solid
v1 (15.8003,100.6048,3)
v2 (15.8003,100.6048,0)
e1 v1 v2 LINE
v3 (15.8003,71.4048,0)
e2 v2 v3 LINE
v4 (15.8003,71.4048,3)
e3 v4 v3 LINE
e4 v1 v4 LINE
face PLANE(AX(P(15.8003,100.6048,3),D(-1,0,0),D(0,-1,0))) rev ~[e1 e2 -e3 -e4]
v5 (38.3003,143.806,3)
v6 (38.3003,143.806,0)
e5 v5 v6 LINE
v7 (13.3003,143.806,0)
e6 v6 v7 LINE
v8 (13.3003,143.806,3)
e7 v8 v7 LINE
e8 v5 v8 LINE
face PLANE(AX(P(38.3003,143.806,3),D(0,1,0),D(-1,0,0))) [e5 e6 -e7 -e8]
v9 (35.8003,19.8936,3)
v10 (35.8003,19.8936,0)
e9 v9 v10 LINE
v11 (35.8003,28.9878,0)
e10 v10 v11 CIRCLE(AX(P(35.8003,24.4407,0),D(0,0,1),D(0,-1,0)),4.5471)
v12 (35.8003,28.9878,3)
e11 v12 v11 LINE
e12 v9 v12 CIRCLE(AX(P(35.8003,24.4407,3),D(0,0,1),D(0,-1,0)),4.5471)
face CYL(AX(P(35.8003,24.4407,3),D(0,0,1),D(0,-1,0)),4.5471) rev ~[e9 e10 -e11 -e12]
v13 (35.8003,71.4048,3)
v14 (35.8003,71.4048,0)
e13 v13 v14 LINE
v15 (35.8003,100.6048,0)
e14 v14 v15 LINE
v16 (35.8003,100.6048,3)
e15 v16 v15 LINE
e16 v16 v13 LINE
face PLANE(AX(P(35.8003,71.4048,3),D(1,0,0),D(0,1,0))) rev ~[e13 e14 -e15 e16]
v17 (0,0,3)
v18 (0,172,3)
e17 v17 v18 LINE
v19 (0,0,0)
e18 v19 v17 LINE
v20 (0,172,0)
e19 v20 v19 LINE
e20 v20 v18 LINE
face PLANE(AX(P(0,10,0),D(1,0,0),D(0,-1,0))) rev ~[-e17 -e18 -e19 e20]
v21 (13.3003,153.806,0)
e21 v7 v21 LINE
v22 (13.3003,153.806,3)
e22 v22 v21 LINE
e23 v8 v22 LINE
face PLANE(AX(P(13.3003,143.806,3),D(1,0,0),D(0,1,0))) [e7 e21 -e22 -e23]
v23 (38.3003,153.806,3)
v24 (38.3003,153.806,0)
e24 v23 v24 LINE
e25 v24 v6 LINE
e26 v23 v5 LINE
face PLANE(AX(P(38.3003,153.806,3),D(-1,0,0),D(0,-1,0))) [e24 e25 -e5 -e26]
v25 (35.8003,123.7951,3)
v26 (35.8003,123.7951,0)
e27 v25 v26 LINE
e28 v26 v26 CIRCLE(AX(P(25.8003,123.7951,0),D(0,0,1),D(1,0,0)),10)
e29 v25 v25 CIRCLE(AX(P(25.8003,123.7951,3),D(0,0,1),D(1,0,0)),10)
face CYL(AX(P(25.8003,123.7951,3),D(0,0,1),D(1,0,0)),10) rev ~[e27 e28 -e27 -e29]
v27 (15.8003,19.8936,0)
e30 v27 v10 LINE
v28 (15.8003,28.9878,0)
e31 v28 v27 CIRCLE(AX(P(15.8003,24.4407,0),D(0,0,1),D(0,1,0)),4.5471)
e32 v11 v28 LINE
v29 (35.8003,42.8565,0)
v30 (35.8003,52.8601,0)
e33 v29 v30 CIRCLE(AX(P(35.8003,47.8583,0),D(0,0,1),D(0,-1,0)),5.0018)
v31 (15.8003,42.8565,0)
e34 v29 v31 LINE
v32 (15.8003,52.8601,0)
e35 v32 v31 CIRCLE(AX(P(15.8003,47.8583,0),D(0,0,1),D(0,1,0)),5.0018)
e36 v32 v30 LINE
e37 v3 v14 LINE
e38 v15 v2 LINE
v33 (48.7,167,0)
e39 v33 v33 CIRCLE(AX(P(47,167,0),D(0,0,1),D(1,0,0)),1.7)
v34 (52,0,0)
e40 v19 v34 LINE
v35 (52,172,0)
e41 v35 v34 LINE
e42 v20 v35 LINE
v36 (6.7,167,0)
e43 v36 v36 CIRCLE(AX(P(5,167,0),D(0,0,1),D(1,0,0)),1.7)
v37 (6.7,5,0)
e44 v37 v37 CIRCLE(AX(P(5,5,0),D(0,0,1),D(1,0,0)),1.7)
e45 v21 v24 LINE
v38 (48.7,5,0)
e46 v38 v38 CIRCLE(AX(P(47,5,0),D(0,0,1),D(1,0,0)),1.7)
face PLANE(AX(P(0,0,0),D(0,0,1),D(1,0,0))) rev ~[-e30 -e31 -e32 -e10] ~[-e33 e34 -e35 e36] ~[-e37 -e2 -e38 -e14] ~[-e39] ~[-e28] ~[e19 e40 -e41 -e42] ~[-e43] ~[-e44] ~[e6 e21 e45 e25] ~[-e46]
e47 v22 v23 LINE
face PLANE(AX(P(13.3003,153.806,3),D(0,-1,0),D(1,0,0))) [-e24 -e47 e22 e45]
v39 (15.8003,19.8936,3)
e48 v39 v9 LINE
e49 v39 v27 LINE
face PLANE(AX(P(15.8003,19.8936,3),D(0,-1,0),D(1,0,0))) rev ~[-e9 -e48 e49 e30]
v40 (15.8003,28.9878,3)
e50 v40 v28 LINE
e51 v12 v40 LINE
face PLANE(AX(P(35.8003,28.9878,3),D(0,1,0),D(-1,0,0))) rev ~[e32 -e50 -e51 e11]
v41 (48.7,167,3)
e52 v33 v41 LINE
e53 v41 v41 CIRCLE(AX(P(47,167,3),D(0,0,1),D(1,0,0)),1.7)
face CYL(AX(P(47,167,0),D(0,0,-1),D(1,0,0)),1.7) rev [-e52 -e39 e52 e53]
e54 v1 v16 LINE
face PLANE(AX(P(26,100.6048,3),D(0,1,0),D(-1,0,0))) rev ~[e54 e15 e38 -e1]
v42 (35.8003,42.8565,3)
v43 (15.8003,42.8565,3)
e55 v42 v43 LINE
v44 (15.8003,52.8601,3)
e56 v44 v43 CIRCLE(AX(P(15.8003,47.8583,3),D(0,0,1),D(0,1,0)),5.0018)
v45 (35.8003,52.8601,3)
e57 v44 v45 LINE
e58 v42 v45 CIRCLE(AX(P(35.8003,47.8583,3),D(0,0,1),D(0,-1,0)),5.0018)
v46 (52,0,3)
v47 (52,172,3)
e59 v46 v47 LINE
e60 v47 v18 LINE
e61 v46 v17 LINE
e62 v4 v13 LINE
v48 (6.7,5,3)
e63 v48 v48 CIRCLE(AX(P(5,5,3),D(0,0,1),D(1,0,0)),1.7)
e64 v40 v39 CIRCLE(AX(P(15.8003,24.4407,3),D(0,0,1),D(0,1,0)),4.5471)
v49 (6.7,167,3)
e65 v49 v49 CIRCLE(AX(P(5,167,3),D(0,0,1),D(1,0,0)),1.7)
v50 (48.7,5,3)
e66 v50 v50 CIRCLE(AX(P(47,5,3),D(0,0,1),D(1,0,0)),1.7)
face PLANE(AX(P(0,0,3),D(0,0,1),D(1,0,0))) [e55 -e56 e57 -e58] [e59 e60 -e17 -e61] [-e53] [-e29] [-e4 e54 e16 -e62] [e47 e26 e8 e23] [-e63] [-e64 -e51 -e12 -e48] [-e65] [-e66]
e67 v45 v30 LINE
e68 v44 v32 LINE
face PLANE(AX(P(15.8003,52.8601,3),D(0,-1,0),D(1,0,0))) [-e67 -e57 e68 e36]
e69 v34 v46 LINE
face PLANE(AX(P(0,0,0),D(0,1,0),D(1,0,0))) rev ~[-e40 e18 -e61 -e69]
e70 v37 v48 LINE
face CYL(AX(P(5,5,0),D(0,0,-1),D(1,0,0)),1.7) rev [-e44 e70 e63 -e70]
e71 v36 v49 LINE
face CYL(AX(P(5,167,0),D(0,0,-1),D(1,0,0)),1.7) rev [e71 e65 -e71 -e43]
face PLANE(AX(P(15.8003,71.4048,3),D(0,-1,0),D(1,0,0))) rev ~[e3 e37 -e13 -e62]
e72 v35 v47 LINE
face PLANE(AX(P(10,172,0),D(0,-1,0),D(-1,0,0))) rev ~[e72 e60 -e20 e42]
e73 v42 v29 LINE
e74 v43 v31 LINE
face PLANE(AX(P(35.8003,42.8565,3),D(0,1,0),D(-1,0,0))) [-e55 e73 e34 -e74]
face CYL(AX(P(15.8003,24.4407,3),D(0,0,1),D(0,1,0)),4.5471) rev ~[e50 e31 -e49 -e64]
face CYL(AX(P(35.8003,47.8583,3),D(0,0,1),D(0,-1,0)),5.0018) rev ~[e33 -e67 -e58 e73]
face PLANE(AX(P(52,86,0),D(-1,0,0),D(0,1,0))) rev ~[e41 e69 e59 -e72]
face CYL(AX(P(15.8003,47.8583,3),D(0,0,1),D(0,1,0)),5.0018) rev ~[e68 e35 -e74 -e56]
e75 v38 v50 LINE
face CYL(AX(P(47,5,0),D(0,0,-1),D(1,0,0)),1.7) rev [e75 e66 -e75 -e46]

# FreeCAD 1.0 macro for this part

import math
import FreeCAD as App
import Part
import Sketcher

doc = App.newDocument("Part")
body = doc.addObject("PartDesign::Body", "Body")

# Sketch on XY plane
sketch1 = body.newObject("Sketcher::SketchObject", "Sketch")
sketch1.AttachmentSupport = (doc.getObject("XY_Plane"), [""])
sketch1.MapMode = "FlatFace"
sketch1.addGeometry([
    Part.LineSegment(App.Vector(0, 0, 0), App.Vector(52, 0, 0)),  # 0
    Part.LineSegment(App.Vector(52, 0, 0), App.Vector(52, 172, 0)),  # 1
    Part.LineSegment(App.Vector(52, 172, 0), App.Vector(0, 172, 0)),  # 2
    Part.LineSegment(App.Vector(0, 172, 0), App.Vector(0, 0, 0)),  # 3
    Part.Circle(App.Vector(5, 5, 0), App.Vector(0, 0, 1), 1.7),  # 4
    Part.Circle(App.Vector(47, 5, 0), App.Vector(0, 0, 1), 1.7),  # 5
    Part.Circle(App.Vector(5, 167, 0), App.Vector(0, 0, 1), 1.7),  # 6
    Part.Circle(App.Vector(47, 167, 0), App.Vector(0, 0, 1), 1.7),  # 7
], False)
sketch1.addConstraint([
    Sketcher.Constraint("Coincident", 0, 2, 1, 1),
    Sketcher.Constraint("Coincident", 1, 2, 2, 1),
    Sketcher.Constraint("Coincident", 2, 2, 3, 1),
    Sketcher.Constraint("Coincident", 3, 2, 0, 1),
    Sketcher.Constraint("Horizontal", 0),
    Sketcher.Constraint("Vertical", 1),
    Sketcher.Constraint("Horizontal", 2),
    Sketcher.Constraint("Vertical", 3),
    Sketcher.Constraint("Coincident", 3, 2, -1, 1),
    Sketcher.Constraint("Equal", 4, 5),
    Sketcher.Constraint("Equal", 5, 6),
    Sketcher.Constraint("Equal", 6, 7),
    Sketcher.Constraint("Horizontal", 4, 3, 5, 3),
    Sketcher.Constraint("Horizontal", 6, 3, 7, 3),
    Sketcher.Constraint("Vertical", 4, 3, 6, 3),
    Sketcher.Constraint("Vertical", 5, 3, 7, 3),
    Sketcher.Constraint("Diameter", 4, 3.4),
    Sketcher.Constraint("DistanceX", 0, 1, 0, 2, 52.0),
    Sketcher.Constraint("DistanceY", 1, 1, 1, 2, 172.0),
    Sketcher.Constraint("DistanceX", -1, 1, 4, 3, 5.0),
    Sketcher.Constraint("DistanceY", -1, 1, 4, 3, 5.0),
    Sketcher.Constraint("DistanceX", -1, 1, 5, 3, 47.0),
    Sketcher.Constraint("DistanceY", -1, 1, 6, 3, 167.0),
])
pad1 = body.newObject("PartDesign::Pad", "Pad")
pad1.Profile = sketch1
pad1.Length = 3

# Sketch on XY plane
sketch2 = body.newObject("Sketcher::SketchObject", "Sketch001")
sketch2.AttachmentSupport = (doc.getObject("XY_Plane"), [""])
sketch2.MapMode = "FlatFace"
sketch2.AttachmentOffset = App.Placement(App.Vector(0, 0, 3), App.Rotation())
sketch2.addGeometry([
    Part.LineSegment(App.Vector(38.3, 153.8, 0), App.Vector(13.3, 153.8, 0)),  # 0
    Part.LineSegment(App.Vector(13.3, 153.8, 0), App.Vector(13.3, 143.8, 0)),  # 1
    Part.LineSegment(App.Vector(13.3, 143.8, 0), App.Vector(38.3, 143.8, 0)),  # 2
    Part.LineSegment(App.Vector(38.3, 143.8, 0), App.Vector(38.3, 153.8, 0)),  # 3
    Part.Circle(App.Vector(25.8, 123.8, 0), App.Vector(0, 0, 1), 10),  # 4
    Part.LineSegment(App.Vector(35.8, 71.4, 0), App.Vector(35.8, 100.6, 0)),  # 5
    Part.LineSegment(App.Vector(35.8, 100.6, 0), App.Vector(15.8, 100.6, 0)),  # 6
    Part.LineSegment(App.Vector(15.8, 100.6, 0), App.Vector(15.8, 71.4, 0)),  # 7
    Part.LineSegment(App.Vector(15.8, 71.4, 0), App.Vector(35.8, 71.4, 0)),  # 8
    Part.LineSegment(App.Vector(35.8, 52.9, 0), App.Vector(15.8, 52.9, 0)),  # 9
    Part.ArcOfCircle(Part.Circle(App.Vector(15.8, 47.9, 0), App.Vector(0, 0, 1), 5), math.radians(90), math.radians(270)),  # 10
    Part.LineSegment(App.Vector(15.8, 42.9, 0), App.Vector(35.8, 42.9, 0)),  # 11
    Part.ArcOfCircle(Part.Circle(App.Vector(35.8, 47.9, 0), App.Vector(0, 0, 1), 5), math.radians(-90), math.radians(90)),  # 12
    Part.ArcOfCircle(Part.Circle(App.Vector(15.8, 24.4, 0), App.Vector(0, 0, 1), 4.5), math.radians(90), math.radians(270)),  # 13
    Part.LineSegment(App.Vector(15.8, 19.9, 0), App.Vector(35.8, 19.9, 0)),  # 14
    Part.ArcOfCircle(Part.Circle(App.Vector(35.8, 24.4, 0), App.Vector(0, 0, 1), 4.5), math.radians(-90), math.radians(90)),  # 15
    Part.LineSegment(App.Vector(35.8, 29, 0), App.Vector(15.8, 29, 0)),  # 16
], False)
sketch2.addConstraint([
    Sketcher.Constraint("Coincident", 0, 2, 1, 1),
    Sketcher.Constraint("Coincident", 1, 2, 2, 1),
    Sketcher.Constraint("Coincident", 2, 2, 3, 1),
    Sketcher.Constraint("Coincident", 3, 2, 0, 1),
    Sketcher.Constraint("Coincident", 5, 2, 6, 1),
    Sketcher.Constraint("Coincident", 6, 2, 7, 1),
    Sketcher.Constraint("Coincident", 7, 2, 8, 1),
    Sketcher.Constraint("Coincident", 8, 2, 5, 1),
    Sketcher.Constraint("Tangent", 9, 2, 10, 1),
    Sketcher.Constraint("Tangent", 10, 2, 11, 1),
    Sketcher.Constraint("Tangent", 11, 2, 12, 1),
    Sketcher.Constraint("Tangent", 12, 2, 9, 1),
    Sketcher.Constraint("Tangent", 13, 2, 14, 1),
    Sketcher.Constraint("Tangent", 14, 2, 15, 1),
    Sketcher.Constraint("Tangent", 15, 2, 16, 1),
    Sketcher.Constraint("Tangent", 16, 2, 13, 1),
    Sketcher.Constraint("Horizontal", 0),
    Sketcher.Constraint("Vertical", 1),
    Sketcher.Constraint("Horizontal", 2),
    Sketcher.Constraint("Vertical", 3),
    Sketcher.Constraint("Vertical", 5),
    Sketcher.Constraint("Horizontal", 6),
    Sketcher.Constraint("Vertical", 7),
    Sketcher.Constraint("Horizontal", 8),
    Sketcher.Constraint("Horizontal", 9),
    Sketcher.Constraint("Horizontal", 11),
    Sketcher.Constraint("Horizontal", 14),
    Sketcher.Constraint("Horizontal", 16),
    Sketcher.Constraint("Vertical", 10, 3, 13, 3),
    Sketcher.Constraint("Vertical", 12, 3, 15, 3),
    Sketcher.Constraint("Vertical", 15, 3, 5, 2),
    Sketcher.Constraint("Vertical", 13, 3, 6, 2),
    Sketcher.Constraint("Diameter", 4, 20.0),
    Sketcher.Constraint("DistanceX", 0, 2, 0, 1, 25.0),
    Sketcher.Constraint("DistanceX", 6, 2, 6, 1, 20.0),
    Sketcher.Constraint("DistanceY", 1, 2, 1, 1, 10.0),
    Sketcher.Constraint("DistanceY", 5, 1, 5, 2, 29.2),
    Sketcher.Constraint("DistanceX", 10, 3, 4, 3, 10.0),
    Sketcher.Constraint("Radius", 13, 4.547),
    Sketcher.Constraint("Radius", 10, 5.0018),
    Sketcher.Constraint("DistanceX", 0, 2, 4, 3, 12.5),
    Sketcher.Constraint("DistanceY", -1, 1, 9, 2, 52.86),
    Sketcher.Constraint("DistanceY", -1, 1, 4, 3, 123.795),
    Sketcher.Constraint("DistanceY", -1, 1, 0, 2, 153.806),
    Sketcher.Constraint("DistanceY", 13, 3, 7, 2, 46.964),
    Sketcher.Constraint("DistanceY", 13, 2, 10, 2, 22.963),
    Sketcher.Constraint("DistanceX", -1, 1, 4, 3, 25.8003),
])
pocket1 = body.newObject("PartDesign::Pocket", "Pocket")
pocket1.Profile = sketch2
pocket1.Length = 3

doc.recompute()
